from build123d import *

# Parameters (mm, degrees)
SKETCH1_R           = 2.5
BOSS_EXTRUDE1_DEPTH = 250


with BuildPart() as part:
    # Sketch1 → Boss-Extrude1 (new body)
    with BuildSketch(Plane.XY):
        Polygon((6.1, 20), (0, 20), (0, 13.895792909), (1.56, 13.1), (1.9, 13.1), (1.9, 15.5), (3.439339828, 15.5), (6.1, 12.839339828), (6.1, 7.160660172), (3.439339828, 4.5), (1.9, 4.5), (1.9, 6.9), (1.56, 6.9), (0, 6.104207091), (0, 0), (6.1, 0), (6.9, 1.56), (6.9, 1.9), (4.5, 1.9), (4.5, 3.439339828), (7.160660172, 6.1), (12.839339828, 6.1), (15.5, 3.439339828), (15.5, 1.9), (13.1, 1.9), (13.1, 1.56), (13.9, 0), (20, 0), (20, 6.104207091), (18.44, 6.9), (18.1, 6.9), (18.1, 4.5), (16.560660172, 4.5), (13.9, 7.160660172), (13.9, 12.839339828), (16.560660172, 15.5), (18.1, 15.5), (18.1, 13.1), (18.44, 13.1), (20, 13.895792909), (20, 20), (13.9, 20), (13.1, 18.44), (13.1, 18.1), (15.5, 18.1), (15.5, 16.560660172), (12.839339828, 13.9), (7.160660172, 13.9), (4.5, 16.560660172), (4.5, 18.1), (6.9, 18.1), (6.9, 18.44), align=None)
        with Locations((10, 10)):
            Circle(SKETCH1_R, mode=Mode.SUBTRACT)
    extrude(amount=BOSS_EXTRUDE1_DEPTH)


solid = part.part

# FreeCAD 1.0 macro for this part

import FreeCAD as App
import Part
import Sketcher

V = App.Vector
Q = App.Units.Quantity

doc = App.newDocument("Part")
body = doc.addObject("PartDesign::Body", "Body")

# Sketch on XY plane
sketch1 = doc.addObject("Sketcher::SketchObject", "Sketch")
body.addObject(sketch1)
sketch1.AttachmentSupport = (doc.XY_Plane, [""])
sketch1.MapMode = "FlatFace"
sketch1.addGeometry(Part.LineSegment(V(6.1, 20, 0), V(0, 20, 0)), False)
sketch1.addGeometry(Part.LineSegment(V(0, 20, 0), V(0, 13.9, 0)), False)
sketch1.addGeometry(Part.LineSegment(V(0, 13.9, 0), V(1.56, 13.1, 0)), False)
sketch1.addGeometry(Part.LineSegment(V(1.56, 13.1, 0), V(1.9, 13.1, 0)), False)
sketch1.addGeometry(Part.LineSegment(V(1.9, 13.1, 0), V(1.9, 15.5, 0)), False)
sketch1.addGeometry(Part.LineSegment(V(1.9, 15.5, 0), V(3.44, 15.5, 0)), False)
sketch1.addGeometry(Part.LineSegment(V(3.44, 15.5, 0), V(6.1, 12.84, 0)), False)
sketch1.addGeometry(Part.LineSegment(V(6.1, 12.84, 0), V(6.1, 7.16, 0)), False)
sketch1.addGeometry(Part.LineSegment(V(6.1, 7.16, 0), V(3.44, 4.5, 0)), False)
sketch1.addGeometry(Part.LineSegment(V(3.44, 4.5, 0), V(1.9, 4.5, 0)), False)
sketch1.addGeometry(Part.LineSegment(V(1.9, 4.5, 0), V(1.9, 6.9, 0)), False)
sketch1.addGeometry(Part.LineSegment(V(1.9, 6.9, 0), V(1.56, 6.9, 0)), False)
sketch1.addGeometry(Part.LineSegment(V(1.56, 6.9, 0), V(0, 6.1, 0)), False)
sketch1.addGeometry(Part.LineSegment(V(0, 6.1, 0), V(0, 0, 0)), False)
sketch1.addGeometry(Part.LineSegment(V(0, 0, 0), V(6.1, 0, 0)), False)
sketch1.addGeometry(Part.LineSegment(V(6.1, 0, 0), V(6.9, 1.56, 0)), False)
sketch1.addGeometry(Part.LineSegment(V(6.9, 1.56, 0), V(6.9, 1.9, 0)), False)
sketch1.addGeometry(Part.LineSegment(V(6.9, 1.9, 0), V(4.5, 1.9, 0)), False)
sketch1.addGeometry(Part.LineSegment(V(4.5, 1.9, 0), V(4.5, 3.44, 0)), False)
sketch1.addGeometry(Part.LineSegment(V(4.5, 3.44, 0), V(7.16, 6.1, 0)), False)
sketch1.addGeometry(Part.LineSegment(V(7.16, 6.1, 0), V(12.84, 6.1, 0)), False)
sketch1.addGeometry(Part.LineSegment(V(12.84, 6.1, 0), V(15.5, 3.44, 0)), False)
sketch1.addGeometry(Part.LineSegment(V(15.5, 3.44, 0), V(15.5, 1.9, 0)), False)
sketch1.addGeometry(Part.LineSegment(V(15.5, 1.9, 0), V(13.1, 1.9, 0)), False)
sketch1.addGeometry(Part.LineSegment(V(13.1, 1.9, 0), V(13.1, 1.56, 0)), False)
sketch1.addGeometry(Part.LineSegment(V(13.1, 1.56, 0), V(13.9, 0, 0)), False)
sketch1.addGeometry(Part.LineSegment(V(13.9, 0, 0), V(20, 0, 0)), False)
sketch1.addGeometry(Part.LineSegment(V(20, 0, 0), V(20, 6.1, 0)), False)
sketch1.addGeometry(Part.LineSegment(V(20, 6.1, 0), V(18.44, 6.9, 0)), False)
sketch1.addGeometry(Part.LineSegment(V(18.44, 6.9, 0), V(18.1, 6.9, 0)), False)
sketch1.addGeometry(Part.LineSegment(V(18.1, 6.9, 0), V(18.1, 4.5, 0)), False)
sketch1.addGeometry(Part.LineSegment(V(18.1, 4.5, 0), V(16.56, 4.5, 0)), False)
sketch1.addGeometry(Part.LineSegment(V(16.56, 4.5, 0), V(13.9, 7.16, 0)), False)
sketch1.addGeometry(Part.LineSegment(V(13.9, 7.16, 0), V(13.9, 12.84, 0)), False)
sketch1.addGeometry(Part.LineSegment(V(13.9, 12.84, 0), V(16.56, 15.5, 0)), False)
sketch1.addGeometry(Part.LineSegment(V(16.56, 15.5, 0), V(18.1, 15.5, 0)), False)
sketch1.addGeometry(Part.LineSegment(V(18.1, 15.5, 0), V(18.1, 13.1, 0)), False)
sketch1.addGeometry(Part.LineSegment(V(18.1, 13.1, 0), V(18.44, 13.1, 0)), False)
sketch1.addGeometry(Part.LineSegment(V(18.44, 13.1, 0), V(20, 13.9, 0)), False)
sketch1.addGeometry(Part.LineSegment(V(20, 13.9, 0), V(20, 20, 0)), False)
sketch1.addGeometry(Part.LineSegment(V(20, 20, 0), V(13.9, 20, 0)), False)
sketch1.addGeometry(Part.LineSegment(V(13.9, 20, 0), V(13.1, 18.44, 0)), False)
sketch1.addGeometry(Part.LineSegment(V(13.1, 18.44, 0), V(13.1, 18.1, 0)), False)
sketch1.addGeometry(Part.LineSegment(V(13.1, 18.1, 0), V(15.5, 18.1, 0)), False)
sketch1.addGeometry(Part.LineSegment(V(15.5, 18.1, 0), V(15.5, 16.56, 0)), False)
sketch1.addGeometry(Part.LineSegment(V(15.5, 16.56, 0), V(12.84, 13.9, 0)), False)
sketch1.addGeometry(Part.LineSegment(V(12.84, 13.9, 0), V(7.16, 13.9, 0)), False)
sketch1.addGeometry(Part.LineSegment(V(7.16, 13.9, 0), V(4.5, 16.56, 0)), False)
sketch1.addGeometry(Part.LineSegment(V(4.5, 16.56, 0), V(4.5, 18.1, 0)), False)
sketch1.addGeometry(Part.LineSegment(V(4.5, 18.1, 0), V(6.9, 18.1, 0)), False)
sketch1.addGeometry(Part.LineSegment(V(6.9, 18.1, 0), V(6.9, 18.44, 0)), False)
sketch1.addGeometry(Part.LineSegment(V(6.9, 18.44, 0), V(6.1, 20, 0)), False)
sketch1.addGeometry(Part.Circle(V(10, 10, 0), V(0, 0, 1), 2.5), False)
sketch1.addConstraint(Sketcher.Constraint("Coincident", 0, 2, 1, 1))
sketch1.addConstraint(Sketcher.Constraint("Coincident", 1, 2, 2, 1))
sketch1.addConstraint(Sketcher.Constraint("Coincident", 2, 2, 3, 1))
sketch1.addConstraint(Sketcher.Constraint("Coincident", 3, 2, 4, 1))
sketch1.addConstraint(Sketcher.Constraint("Coincident", 4, 2, 5, 1))
sketch1.addConstraint(Sketcher.Constraint("Coincident", 5, 2, 6, 1))
sketch1.addConstraint(Sketcher.Constraint("Coincident", 6, 2, 7, 1))
sketch1.addConstraint(Sketcher.Constraint("Coincident", 7, 2, 8, 1))
sketch1.addConstraint(Sketcher.Constraint("Coincident", 8, 2, 9, 1))
sketch1.addConstraint(Sketcher.Constraint("Coincident", 9, 2, 10, 1))
sketch1.addConstraint(Sketcher.Constraint("Coincident", 10, 2, 11, 1))
sketch1.addConstraint(Sketcher.Constraint("Coincident", 11, 2, 12, 1))
sketch1.addConstraint(Sketcher.Constraint("Coincident", 12, 2, 13, 1))
sketch1.addConstraint(Sketcher.Constraint("Coincident", 13, 2, 14, 1))
sketch1.addConstraint(Sketcher.Constraint("Coincident", 14, 2, 15, 1))
sketch1.addConstraint(Sketcher.Constraint("Coincident", 15, 2, 16, 1))
sketch1.addConstraint(Sketcher.Constraint("Coincident", 16, 2, 17, 1))
sketch1.addConstraint(Sketcher.Constraint("Coincident", 17, 2, 18, 1))
sketch1.addConstraint(Sketcher.Constraint("Coincident", 18, 2, 19, 1))
sketch1.addConstraint(Sketcher.Constraint("Coincident", 19, 2, 20, 1))
sketch1.addConstraint(Sketcher.Constraint("Coincident", 20, 2, 21, 1))
sketch1.addConstraint(Sketcher.Constraint("Coincident", 21, 2, 22, 1))
sketch1.addConstraint(Sketcher.Constraint("Coincident", 22, 2, 23, 1))
sketch1.addConstraint(Sketcher.Constraint("Coincident", 23, 2, 24, 1))
sketch1.addConstraint(Sketcher.Constraint("Coincident", 24, 2, 25, 1))
sketch1.addConstraint(Sketcher.Constraint("Coincident", 25, 2, 26, 1))
sketch1.addConstraint(Sketcher.Constraint("Coincident", 26, 2, 27, 1))
sketch1.addConstraint(Sketcher.Constraint("Coincident", 27, 2, 28, 1))
sketch1.addConstraint(Sketcher.Constraint("Coincident", 28, 2, 29, 1))
sketch1.addConstraint(Sketcher.Constraint("Coincident", 29, 2, 30, 1))
sketch1.addConstraint(Sketcher.Constraint("Coincident", 30, 2, 31, 1))
sketch1.addConstraint(Sketcher.Constraint("Coincident", 31, 2, 32, 1))
sketch1.addConstraint(Sketcher.Constraint("Coincident", 32, 2, 33, 1))
sketch1.addConstraint(Sketcher.Constraint("Coincident", 33, 2, 34, 1))
sketch1.addConstraint(Sketcher.Constraint("Coincident", 34, 2, 35, 1))
sketch1.addConstraint(Sketcher.Constraint("Coincident", 35, 2, 36, 1))
sketch1.addConstraint(Sketcher.Constraint("Coincident", 36, 2, 37, 1))
sketch1.addConstraint(Sketcher.Constraint("Coincident", 37, 2, 38, 1))
sketch1.addConstraint(Sketcher.Constraint("Coincident", 38, 2, 39, 1))
sketch1.addConstraint(Sketcher.Constraint("Coincident", 39, 2, 40, 1))
sketch1.addConstraint(Sketcher.Constraint("Coincident", 40, 2, 41, 1))
sketch1.addConstraint(Sketcher.Constraint("Coincident", 41, 2, 42, 1))
sketch1.addConstraint(Sketcher.Constraint("Coincident", 42, 2, 43, 1))
sketch1.addConstraint(Sketcher.Constraint("Coincident", 43, 2, 44, 1))
sketch1.addConstraint(Sketcher.Constraint("Coincident", 44, 2, 45, 1))
sketch1.addConstraint(Sketcher.Constraint("Coincident", 45, 2, 46, 1))
sketch1.addConstraint(Sketcher.Constraint("Coincident", 46, 2, 47, 1))
sketch1.addConstraint(Sketcher.Constraint("Coincident", 47, 2, 48, 1))
sketch1.addConstraint(Sketcher.Constraint("Coincident", 48, 2, 49, 1))
sketch1.addConstraint(Sketcher.Constraint("Coincident", 49, 2, 50, 1))
sketch1.addConstraint(Sketcher.Constraint("Coincident", 50, 2, 51, 1))
sketch1.addConstraint(Sketcher.Constraint("Coincident", 51, 2, 0, 1))
sketch1.addConstraint(Sketcher.Constraint("Horizontal", 0))
sketch1.addConstraint(Sketcher.Constraint("Vertical", 1))
sketch1.addConstraint(Sketcher.Constraint("Horizontal", 3))
sketch1.addConstraint(Sketcher.Constraint("Vertical", 4))
sketch1.addConstraint(Sketcher.Constraint("Horizontal", 5))
sketch1.addConstraint(Sketcher.Constraint("Vertical", 7))
sketch1.addConstraint(Sketcher.Constraint("Horizontal", 9))
sketch1.addConstraint(Sketcher.Constraint("Vertical", 10))
sketch1.addConstraint(Sketcher.Constraint("Horizontal", 11))
sketch1.addConstraint(Sketcher.Constraint("Vertical", 13))
sketch1.addConstraint(Sketcher.Constraint("Horizontal", 14))
sketch1.addConstraint(Sketcher.Constraint("Vertical", 16))
sketch1.addConstraint(Sketcher.Constraint("Horizontal", 17))
sketch1.addConstraint(Sketcher.Constraint("Vertical", 18))
sketch1.addConstraint(Sketcher.Constraint("Horizontal", 20))
sketch1.addConstraint(Sketcher.Constraint("Vertical", 22))
sketch1.addConstraint(Sketcher.Constraint("Horizontal", 23))
sketch1.addConstraint(Sketcher.Constraint("Vertical", 24))
sketch1.addConstraint(Sketcher.Constraint("Horizontal", 26))
sketch1.addConstraint(Sketcher.Constraint("Vertical", 27))
sketch1.addConstraint(Sketcher.Constraint("Horizontal", 29))
sketch1.addConstraint(Sketcher.Constraint("Vertical", 30))
sketch1.addConstraint(Sketcher.Constraint("Horizontal", 31))
sketch1.addConstraint(Sketcher.Constraint("Vertical", 33))
sketch1.addConstraint(Sketcher.Constraint("Horizontal", 35))
sketch1.addConstraint(Sketcher.Constraint("Vertical", 36))
sketch1.addConstraint(Sketcher.Constraint("Horizontal", 37))
sketch1.addConstraint(Sketcher.Constraint("Vertical", 39))
sketch1.addConstraint(Sketcher.Constraint("Horizontal", 40))
sketch1.addConstraint(Sketcher.Constraint("Vertical", 42))
sketch1.addConstraint(Sketcher.Constraint("Horizontal", 43))
sketch1.addConstraint(Sketcher.Constraint("Vertical", 44))
sketch1.addConstraint(Sketcher.Constraint("Horizontal", 46))
sketch1.addConstraint(Sketcher.Constraint("Vertical", 48))
sketch1.addConstraint(Sketcher.Constraint("Horizontal", 49))
sketch1.addConstraint(Sketcher.Constraint("Vertical", 50))
sketch1.addConstraint(Sketcher.Constraint("Coincident", 13, 2, -1, 1))
sketch1.addConstraint(Sketcher.Constraint("PointOnObject", 0, 2, -2))
sketch1.addConstraint(Sketcher.Constraint("PointOnObject", 25, 2, -1))
sketch1.addConstraint(Sketcher.Constraint("Perpendicular", 6, 8))
sketch1.addConstraint(Sketcher.Constraint("Parallel", 8, 19))
sketch1.addConstraint(Sketcher.Constraint("Perpendicular", 19, 21))
sketch1.addConstraint(Sketcher.Constraint("Parallel", 2, 28))
sketch1.addConstraint(Sketcher.Constraint("Parallel", 21, 32))
sketch1.addConstraint(Sketcher.Constraint("Perpendicular", 32, 34))
sketch1.addConstraint(Sketcher.Constraint("Parallel", 12, 38))
sketch1.addConstraint(Sketcher.Constraint("Parallel", 15, 41))
sketch1.addConstraint(Sketcher.Constraint("Parallel", 34, 45))
sketch1.addConstraint(Sketcher.Constraint("Perpendicular", 45, 47))
sketch1.addConstraint(Sketcher.Constraint("Parallel", 25, 51))
sketch1.addConstraint(Sketcher.Constraint("Horizontal", 18, 2, 21, 2))
sketch1.addConstraint(Sketcher.Constraint("Horizontal", 17, 2, 22, 2))
sketch1.addConstraint(Sketcher.Constraint("Horizontal", 15, 2, 24, 2))
sketch1.addConstraint(Sketcher.Constraint("Horizontal", 12, 2, 27, 2))
sketch1.addConstraint(Sketcher.Constraint("Horizontal", 11, 2, 28, 2))
sketch1.addConstraint(Sketcher.Constraint("Horizontal", 9, 2, 30, 2))
sketch1.addConstraint(Sketcher.Constraint("Horizontal", 7, 2, 32, 2))
sketch1.addConstraint(Sketcher.Constraint("Horizontal", 6, 2, 33, 2))
sketch1.addConstraint(Sketcher.Constraint("Horizontal", 5, 2, 34, 2))
sketch1.addConstraint(Sketcher.Constraint("Horizontal", 3, 2, 36, 2))
sketch1.addConstraint(Sketcher.Constraint("Horizontal", 1, 2, 38, 2))
sketch1.addConstraint(Sketcher.Constraint("Horizontal", 0, 2, 39, 2))
sketch1.addConstraint(Sketcher.Constraint("Horizontal", 44, 2, 47, 2))
sketch1.addConstraint(Sketcher.Constraint("Horizontal", 43, 2, 48, 2))
sketch1.addConstraint(Sketcher.Constraint("Horizontal", 41, 2, 50, 2))
sketch1.addConstraint(Sketcher.Constraint("Vertical", 5, 2, 8, 2))
sketch1.addConstraint(Sketcher.Constraint("Vertical", 4, 2, 9, 2))
sketch1.addConstraint(Sketcher.Constraint("Vertical", 2, 2, 11, 2))
sketch1.addConstraint(Sketcher.Constraint("Vertical", 7, 2, 14, 2))
sketch1.addConstraint(Sketcher.Constraint("Vertical", 25, 2, 32, 2))
sketch1.addConstraint(Sketcher.Constraint("Vertical", 31, 2, 34, 2))
sketch1.addConstraint(Sketcher.Constraint("Vertical", 30, 2, 35, 2))
sketch1.addConstraint(Sketcher.Constraint("Vertical", 28, 2, 37, 2))
sketch1.addConstraint(Sketcher.Constraint("Vertical", 27, 2, 38, 2))
sketch1.addConstraint(Sketcher.Constraint("Vertical", 33, 2, 40, 2))
sketch1.addConstraint(Sketcher.Constraint("Vertical", 24, 2, 41, 2))
sketch1.addConstraint(Sketcher.Constraint("Vertical", 22, 2, 43, 2))
sketch1.addConstraint(Sketcher.Constraint("Vertical", 20, 2, 45, 2))
sketch1.addConstraint(Sketcher.Constraint("Vertical", 19, 2, 46, 2))
sketch1.addConstraint(Sketcher.Constraint("Vertical", 16, 2, 49, 2))
sketch1.addConstraint(Sketcher.Constraint("Vertical", 14, 2, 51, 2))
sketch1.addConstraint(Sketcher.Constraint("Equal", 17, 23))
sketch1.addConstraint(Sketcher.Constraint("Equal", 14, 26))
sketch1.addConstraint(Sketcher.Constraint("Equal", 11, 29))
sketch1.addConstraint(Sketcher.Constraint("Equal", 49, 4))
sketch1.addConstraint(Sketcher.Constraint("Equal", 46, 7))
sketch1.addConstraint(Sketcher.Constraint("Equal", 4, 10))
sketch1.addConstraint(Sketcher.Constraint("Equal", 1, 13))
sketch1.addConstraint(Sketcher.Constraint("Equal", 37, 16))
sketch1.addConstraint(Sketcher.Constraint("Equal", 35, 18))
sketch1.addConstraint(Sketcher.Constraint("Equal", 24, 42))
sketch1.addConstraint(Sketcher.Constraint("Equal", 22, 44))
sketch1.addConstraint(Sketcher.Constraint("Equal", 8, 19))
sketch1.addConstraint(Sketcher.Constraint("Diameter", 52, Q("5 mm")))
sketch1.addConstraint(Sketcher.Constraint("DistanceX", 0, 2, 0, 1, Q("6.1 mm")))
sketch1.addConstraint(Sketcher.Constraint("DistanceX", 17, 2, 17, 1, Q("2.4 mm")))
sketch1.addConstraint(Sketcher.Constraint("DistanceX", -1, 1, 52, 3, Q("10 mm")))
sketch1.addConstraint(Sketcher.Constraint("DistanceY", -1, 1, 52, 3, Q("10 mm")))
sketch1.addConstraint(Sketcher.Constraint("DistanceY", -1, 1, 0, 2, Q("20 mm")))
sketch1.addConstraint(Sketcher.Constraint("DistanceX", -1, 1, 26, 2, Q("20 mm")))
sketch1.addConstraint(Sketcher.Constraint("DistanceX", 9, 2, 15, 2, Q("5 mm")))
sketch1.addConstraint(Sketcher.Constraint("DistanceY", 22, 2, 28, 2, Q("5 mm")))
sketch1.addConstraint(Sketcher.Constraint("DistanceX", 3, 1, 3, 2, Q("0.34 mm")))
sketch1.addConstraint(Sketcher.Constraint("DistanceY", -1, 1, 2, 2, Q("13.1 mm")))
sketch1.addConstraint(Sketcher.Constraint("DistanceX", 5, 1, 5, 2, Q("1.53934 mm")))
sketch1.addConstraint(Sketcher.Constraint("DistanceY", 1, 2, 1, 1, Q("6.104207 mm")))
pad1 = doc.addObject("PartDesign::Pad", "Pad")
body.addObject(pad1)
pad1.Profile = sketch1
pad1.Length = 250

doc.recompute()
